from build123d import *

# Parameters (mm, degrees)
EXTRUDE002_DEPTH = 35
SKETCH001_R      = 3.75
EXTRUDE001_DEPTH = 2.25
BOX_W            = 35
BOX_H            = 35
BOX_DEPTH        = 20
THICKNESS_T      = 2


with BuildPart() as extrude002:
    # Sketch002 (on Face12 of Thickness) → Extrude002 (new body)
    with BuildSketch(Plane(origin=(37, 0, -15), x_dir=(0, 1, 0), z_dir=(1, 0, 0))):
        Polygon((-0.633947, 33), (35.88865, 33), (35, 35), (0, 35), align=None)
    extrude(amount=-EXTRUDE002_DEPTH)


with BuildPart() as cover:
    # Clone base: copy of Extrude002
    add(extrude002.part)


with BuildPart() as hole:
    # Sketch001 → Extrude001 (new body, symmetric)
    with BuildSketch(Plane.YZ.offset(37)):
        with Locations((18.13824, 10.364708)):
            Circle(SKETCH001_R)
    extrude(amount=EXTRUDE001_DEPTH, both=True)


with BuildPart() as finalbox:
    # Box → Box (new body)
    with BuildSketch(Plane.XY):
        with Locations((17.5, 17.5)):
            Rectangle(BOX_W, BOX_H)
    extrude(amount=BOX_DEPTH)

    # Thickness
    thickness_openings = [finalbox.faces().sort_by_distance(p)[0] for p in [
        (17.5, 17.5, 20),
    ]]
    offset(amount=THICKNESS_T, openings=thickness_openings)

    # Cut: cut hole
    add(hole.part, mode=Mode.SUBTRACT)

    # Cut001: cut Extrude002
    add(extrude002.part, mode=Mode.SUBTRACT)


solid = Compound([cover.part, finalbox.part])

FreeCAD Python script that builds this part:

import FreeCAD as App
import Part
import Sketcher
Q = App.Units.Quantity


def faces_at(feature, points):
    """Names of the faces that lie closest to the given points."""
    faces = feature.Shape.Faces
    near = lambda p: min(range(len(faces)), key=lambda i: faces[i].distToShape(Part.Vertex(*p))[0])
    return sorted({f"Face{near(p) + 1}" for p in points})

doc = App.newDocument("Part")
params = doc.addObject("Spreadsheet::Sheet", "Params")
for row, (alias, value) in enumerate([
    ("sketch1_width", "35 mm"),
    ("pad1_length", "35 mm"),
    ("sketch2_diameter", "7.5 mm"),
    ("pad2_length", "4.5 mm"),
    ("sketch3_width", "35 mm"),
    ("pad3_length", "20 mm"),
    ("thickness_wall", "2 mm"),
], start=1):
    params.set(f"A{row}", alias)
    params.set(f"B{row}", "=" + value)
    params.setAlias(f"B{row}", alias)

body = doc.addObject("PartDesign::Body", "Body")

# Sketch on YZ plane
sketch1 = body.newObject("Sketcher::SketchObject", "Sketch")
sketch1.AttachmentSupport = (doc.getObject("YZ_Plane"), [""])
sketch1.MapMode = "FlatFace"
sketch1.AttachmentOffset = App.Placement(App.Vector(0, 0, 37), App.Rotation())
sketch1.addGeometry([
    Part.LineSegment(App.Vector(-0.6, 18, 0), App.Vector(35.9, 18, 0)),
    Part.LineSegment(App.Vector(35.9, 18, 0), App.Vector(35, 20, 0)),
    Part.LineSegment(App.Vector(35, 20, 0), App.Vector(0, 20, 0)),
    Part.LineSegment(App.Vector(0, 20, 0), App.Vector(-0.6, 18, 0)),
], False)
sketch1.addConstraint([
    Sketcher.Constraint("Coincident", 0, 2, 1, 1),
    Sketcher.Constraint("Coincident", 1, 2, 2, 1),
    Sketcher.Constraint("Coincident", 2, 2, 3, 1),
    Sketcher.Constraint("Coincident", 3, 2, 0, 1),
    Sketcher.Constraint("Horizontal", 0),
    Sketcher.Constraint("Horizontal", 2),
    Sketcher.Constraint("PointOnObject", 2, 2, -2),
    Sketcher.Constraint("DistanceX", 2, 2, 2, 1, Q("35 mm")),
    Sketcher.Constraint("DistanceY", -1, 1, 0, 2, Q("18 mm")),
    Sketcher.Constraint("DistanceY", -1, 1, 1, 2, Q("20 mm")),
    Sketcher.Constraint("Distance", 1, Q("2.188538 mm")),
    Sketcher.Constraint("DistanceX", 0, 1, 0, 2, Q("36.522597 mm")),
])
sketch1.setExpression("Constraints[7]", "Params.sketch1_width")
pad1 = body.newObject("PartDesign::Pad", "Pad")
pad1.Profile = sketch1
pad1.setExpression("Length", "Params.pad1_length")
pad1.Reversed = True
body2 = doc.addObject("PartDesign::Body", "Body001")
doc.recompute()

body2.BaseFeature = body
doc.recompute()
body3 = doc.addObject("PartDesign::Body", "Body002")

# Sketch on YZ plane
sketch2 = body3.newObject("Sketcher::SketchObject", "Sketch001")
sketch2.AttachmentSupport = (doc.getObject("YZ_Plane002"), [""])
sketch2.MapMode = "FlatFace"
sketch2.AttachmentOffset = App.Placement(App.Vector(0, 0, 37), App.Rotation())
sketch2.addGeometry(Part.Circle(App.Vector(18.1, 10.4, 0), App.Vector(0, 0, 1), 3.8), False)
sketch2.addConstraint([
    Sketcher.Constraint("Diameter", 0, Q("7.5 mm")),
    Sketcher.Constraint("DistanceX", -1, 1, 0, 3, Q("18.13824 mm")),
    Sketcher.Constraint("DistanceY", -1, 1, 0, 3, Q("10.364708 mm")),
])
sketch2.setExpression("Constraints[0]", "Params.sketch2_diameter")
pad2 = body3.newObject("PartDesign::Pad", "Pad001")
pad2.Profile = sketch2
pad2.setExpression("Length", "Params.pad2_length")
pad2.Midplane = True
body4 = doc.addObject("PartDesign::Body", "Body003")

# Sketch on XY plane
sketch3 = body4.newObject("Sketcher::SketchObject", "Sketch002")
sketch3.AttachmentSupport = (doc.getObject("XY_Plane003"), [""])
sketch3.MapMode = "FlatFace"
sketch3.addGeometry([
    Part.LineSegment(App.Vector(0, 35, 0), App.Vector(0, 0, 0)),
    Part.LineSegment(App.Vector(0, 0, 0), App.Vector(35, 0, 0)),
    Part.LineSegment(App.Vector(35, 0, 0), App.Vector(35, 35, 0)),
    Part.LineSegment(App.Vector(35, 35, 0), App.Vector(0, 35, 0)),
], False)
sketch3.addConstraint([
    Sketcher.Constraint("Coincident", 0, 2, 1, 1),
    Sketcher.Constraint("Coincident", 1, 2, 2, 1),
    Sketcher.Constraint("Coincident", 2, 2, 3, 1),
    Sketcher.Constraint("Coincident", 3, 2, 0, 1),
    Sketcher.Constraint("Vertical", 0),
    Sketcher.Constraint("Horizontal", 1),
    Sketcher.Constraint("Vertical", 2),
    Sketcher.Constraint("Horizontal", 3),
    Sketcher.Constraint("Coincident", 0, 2, -1, 1),
    Sketcher.Constraint("Equal", 3, 0),
    Sketcher.Constraint("DistanceX", 1, 1, 1, 2, Q("35 mm")),
])
sketch3.setExpression("Constraints[10]", "Params.sketch3_width")
pad3 = body4.newObject("PartDesign::Pad", "Pad002")
pad3.Profile = sketch3
pad3.setExpression("Length", "Params.pad3_length")
doc.recompute()

thickness = body4.newObject("PartDesign::Thickness", "Thickness")
thickness.Base = (pad3, faces_at(pad3, [(17.5, 17.5, 20)]))
thickness.setExpression("Value", "Params.thickness_wall")
thickness.Reversed = False
thickness.Join = "Arc"
doc.recompute()

boolean = body4.newObject("PartDesign::Boolean", "Boolean")
boolean.Type = "Cut"
boolean.addObjects([body3])
doc.recompute()

boolean2 = body4.newObject("PartDesign::Boolean", "Boolean001")
boolean2.Type = "Cut"
boolean2.addObjects([body])

doc.recompute()
